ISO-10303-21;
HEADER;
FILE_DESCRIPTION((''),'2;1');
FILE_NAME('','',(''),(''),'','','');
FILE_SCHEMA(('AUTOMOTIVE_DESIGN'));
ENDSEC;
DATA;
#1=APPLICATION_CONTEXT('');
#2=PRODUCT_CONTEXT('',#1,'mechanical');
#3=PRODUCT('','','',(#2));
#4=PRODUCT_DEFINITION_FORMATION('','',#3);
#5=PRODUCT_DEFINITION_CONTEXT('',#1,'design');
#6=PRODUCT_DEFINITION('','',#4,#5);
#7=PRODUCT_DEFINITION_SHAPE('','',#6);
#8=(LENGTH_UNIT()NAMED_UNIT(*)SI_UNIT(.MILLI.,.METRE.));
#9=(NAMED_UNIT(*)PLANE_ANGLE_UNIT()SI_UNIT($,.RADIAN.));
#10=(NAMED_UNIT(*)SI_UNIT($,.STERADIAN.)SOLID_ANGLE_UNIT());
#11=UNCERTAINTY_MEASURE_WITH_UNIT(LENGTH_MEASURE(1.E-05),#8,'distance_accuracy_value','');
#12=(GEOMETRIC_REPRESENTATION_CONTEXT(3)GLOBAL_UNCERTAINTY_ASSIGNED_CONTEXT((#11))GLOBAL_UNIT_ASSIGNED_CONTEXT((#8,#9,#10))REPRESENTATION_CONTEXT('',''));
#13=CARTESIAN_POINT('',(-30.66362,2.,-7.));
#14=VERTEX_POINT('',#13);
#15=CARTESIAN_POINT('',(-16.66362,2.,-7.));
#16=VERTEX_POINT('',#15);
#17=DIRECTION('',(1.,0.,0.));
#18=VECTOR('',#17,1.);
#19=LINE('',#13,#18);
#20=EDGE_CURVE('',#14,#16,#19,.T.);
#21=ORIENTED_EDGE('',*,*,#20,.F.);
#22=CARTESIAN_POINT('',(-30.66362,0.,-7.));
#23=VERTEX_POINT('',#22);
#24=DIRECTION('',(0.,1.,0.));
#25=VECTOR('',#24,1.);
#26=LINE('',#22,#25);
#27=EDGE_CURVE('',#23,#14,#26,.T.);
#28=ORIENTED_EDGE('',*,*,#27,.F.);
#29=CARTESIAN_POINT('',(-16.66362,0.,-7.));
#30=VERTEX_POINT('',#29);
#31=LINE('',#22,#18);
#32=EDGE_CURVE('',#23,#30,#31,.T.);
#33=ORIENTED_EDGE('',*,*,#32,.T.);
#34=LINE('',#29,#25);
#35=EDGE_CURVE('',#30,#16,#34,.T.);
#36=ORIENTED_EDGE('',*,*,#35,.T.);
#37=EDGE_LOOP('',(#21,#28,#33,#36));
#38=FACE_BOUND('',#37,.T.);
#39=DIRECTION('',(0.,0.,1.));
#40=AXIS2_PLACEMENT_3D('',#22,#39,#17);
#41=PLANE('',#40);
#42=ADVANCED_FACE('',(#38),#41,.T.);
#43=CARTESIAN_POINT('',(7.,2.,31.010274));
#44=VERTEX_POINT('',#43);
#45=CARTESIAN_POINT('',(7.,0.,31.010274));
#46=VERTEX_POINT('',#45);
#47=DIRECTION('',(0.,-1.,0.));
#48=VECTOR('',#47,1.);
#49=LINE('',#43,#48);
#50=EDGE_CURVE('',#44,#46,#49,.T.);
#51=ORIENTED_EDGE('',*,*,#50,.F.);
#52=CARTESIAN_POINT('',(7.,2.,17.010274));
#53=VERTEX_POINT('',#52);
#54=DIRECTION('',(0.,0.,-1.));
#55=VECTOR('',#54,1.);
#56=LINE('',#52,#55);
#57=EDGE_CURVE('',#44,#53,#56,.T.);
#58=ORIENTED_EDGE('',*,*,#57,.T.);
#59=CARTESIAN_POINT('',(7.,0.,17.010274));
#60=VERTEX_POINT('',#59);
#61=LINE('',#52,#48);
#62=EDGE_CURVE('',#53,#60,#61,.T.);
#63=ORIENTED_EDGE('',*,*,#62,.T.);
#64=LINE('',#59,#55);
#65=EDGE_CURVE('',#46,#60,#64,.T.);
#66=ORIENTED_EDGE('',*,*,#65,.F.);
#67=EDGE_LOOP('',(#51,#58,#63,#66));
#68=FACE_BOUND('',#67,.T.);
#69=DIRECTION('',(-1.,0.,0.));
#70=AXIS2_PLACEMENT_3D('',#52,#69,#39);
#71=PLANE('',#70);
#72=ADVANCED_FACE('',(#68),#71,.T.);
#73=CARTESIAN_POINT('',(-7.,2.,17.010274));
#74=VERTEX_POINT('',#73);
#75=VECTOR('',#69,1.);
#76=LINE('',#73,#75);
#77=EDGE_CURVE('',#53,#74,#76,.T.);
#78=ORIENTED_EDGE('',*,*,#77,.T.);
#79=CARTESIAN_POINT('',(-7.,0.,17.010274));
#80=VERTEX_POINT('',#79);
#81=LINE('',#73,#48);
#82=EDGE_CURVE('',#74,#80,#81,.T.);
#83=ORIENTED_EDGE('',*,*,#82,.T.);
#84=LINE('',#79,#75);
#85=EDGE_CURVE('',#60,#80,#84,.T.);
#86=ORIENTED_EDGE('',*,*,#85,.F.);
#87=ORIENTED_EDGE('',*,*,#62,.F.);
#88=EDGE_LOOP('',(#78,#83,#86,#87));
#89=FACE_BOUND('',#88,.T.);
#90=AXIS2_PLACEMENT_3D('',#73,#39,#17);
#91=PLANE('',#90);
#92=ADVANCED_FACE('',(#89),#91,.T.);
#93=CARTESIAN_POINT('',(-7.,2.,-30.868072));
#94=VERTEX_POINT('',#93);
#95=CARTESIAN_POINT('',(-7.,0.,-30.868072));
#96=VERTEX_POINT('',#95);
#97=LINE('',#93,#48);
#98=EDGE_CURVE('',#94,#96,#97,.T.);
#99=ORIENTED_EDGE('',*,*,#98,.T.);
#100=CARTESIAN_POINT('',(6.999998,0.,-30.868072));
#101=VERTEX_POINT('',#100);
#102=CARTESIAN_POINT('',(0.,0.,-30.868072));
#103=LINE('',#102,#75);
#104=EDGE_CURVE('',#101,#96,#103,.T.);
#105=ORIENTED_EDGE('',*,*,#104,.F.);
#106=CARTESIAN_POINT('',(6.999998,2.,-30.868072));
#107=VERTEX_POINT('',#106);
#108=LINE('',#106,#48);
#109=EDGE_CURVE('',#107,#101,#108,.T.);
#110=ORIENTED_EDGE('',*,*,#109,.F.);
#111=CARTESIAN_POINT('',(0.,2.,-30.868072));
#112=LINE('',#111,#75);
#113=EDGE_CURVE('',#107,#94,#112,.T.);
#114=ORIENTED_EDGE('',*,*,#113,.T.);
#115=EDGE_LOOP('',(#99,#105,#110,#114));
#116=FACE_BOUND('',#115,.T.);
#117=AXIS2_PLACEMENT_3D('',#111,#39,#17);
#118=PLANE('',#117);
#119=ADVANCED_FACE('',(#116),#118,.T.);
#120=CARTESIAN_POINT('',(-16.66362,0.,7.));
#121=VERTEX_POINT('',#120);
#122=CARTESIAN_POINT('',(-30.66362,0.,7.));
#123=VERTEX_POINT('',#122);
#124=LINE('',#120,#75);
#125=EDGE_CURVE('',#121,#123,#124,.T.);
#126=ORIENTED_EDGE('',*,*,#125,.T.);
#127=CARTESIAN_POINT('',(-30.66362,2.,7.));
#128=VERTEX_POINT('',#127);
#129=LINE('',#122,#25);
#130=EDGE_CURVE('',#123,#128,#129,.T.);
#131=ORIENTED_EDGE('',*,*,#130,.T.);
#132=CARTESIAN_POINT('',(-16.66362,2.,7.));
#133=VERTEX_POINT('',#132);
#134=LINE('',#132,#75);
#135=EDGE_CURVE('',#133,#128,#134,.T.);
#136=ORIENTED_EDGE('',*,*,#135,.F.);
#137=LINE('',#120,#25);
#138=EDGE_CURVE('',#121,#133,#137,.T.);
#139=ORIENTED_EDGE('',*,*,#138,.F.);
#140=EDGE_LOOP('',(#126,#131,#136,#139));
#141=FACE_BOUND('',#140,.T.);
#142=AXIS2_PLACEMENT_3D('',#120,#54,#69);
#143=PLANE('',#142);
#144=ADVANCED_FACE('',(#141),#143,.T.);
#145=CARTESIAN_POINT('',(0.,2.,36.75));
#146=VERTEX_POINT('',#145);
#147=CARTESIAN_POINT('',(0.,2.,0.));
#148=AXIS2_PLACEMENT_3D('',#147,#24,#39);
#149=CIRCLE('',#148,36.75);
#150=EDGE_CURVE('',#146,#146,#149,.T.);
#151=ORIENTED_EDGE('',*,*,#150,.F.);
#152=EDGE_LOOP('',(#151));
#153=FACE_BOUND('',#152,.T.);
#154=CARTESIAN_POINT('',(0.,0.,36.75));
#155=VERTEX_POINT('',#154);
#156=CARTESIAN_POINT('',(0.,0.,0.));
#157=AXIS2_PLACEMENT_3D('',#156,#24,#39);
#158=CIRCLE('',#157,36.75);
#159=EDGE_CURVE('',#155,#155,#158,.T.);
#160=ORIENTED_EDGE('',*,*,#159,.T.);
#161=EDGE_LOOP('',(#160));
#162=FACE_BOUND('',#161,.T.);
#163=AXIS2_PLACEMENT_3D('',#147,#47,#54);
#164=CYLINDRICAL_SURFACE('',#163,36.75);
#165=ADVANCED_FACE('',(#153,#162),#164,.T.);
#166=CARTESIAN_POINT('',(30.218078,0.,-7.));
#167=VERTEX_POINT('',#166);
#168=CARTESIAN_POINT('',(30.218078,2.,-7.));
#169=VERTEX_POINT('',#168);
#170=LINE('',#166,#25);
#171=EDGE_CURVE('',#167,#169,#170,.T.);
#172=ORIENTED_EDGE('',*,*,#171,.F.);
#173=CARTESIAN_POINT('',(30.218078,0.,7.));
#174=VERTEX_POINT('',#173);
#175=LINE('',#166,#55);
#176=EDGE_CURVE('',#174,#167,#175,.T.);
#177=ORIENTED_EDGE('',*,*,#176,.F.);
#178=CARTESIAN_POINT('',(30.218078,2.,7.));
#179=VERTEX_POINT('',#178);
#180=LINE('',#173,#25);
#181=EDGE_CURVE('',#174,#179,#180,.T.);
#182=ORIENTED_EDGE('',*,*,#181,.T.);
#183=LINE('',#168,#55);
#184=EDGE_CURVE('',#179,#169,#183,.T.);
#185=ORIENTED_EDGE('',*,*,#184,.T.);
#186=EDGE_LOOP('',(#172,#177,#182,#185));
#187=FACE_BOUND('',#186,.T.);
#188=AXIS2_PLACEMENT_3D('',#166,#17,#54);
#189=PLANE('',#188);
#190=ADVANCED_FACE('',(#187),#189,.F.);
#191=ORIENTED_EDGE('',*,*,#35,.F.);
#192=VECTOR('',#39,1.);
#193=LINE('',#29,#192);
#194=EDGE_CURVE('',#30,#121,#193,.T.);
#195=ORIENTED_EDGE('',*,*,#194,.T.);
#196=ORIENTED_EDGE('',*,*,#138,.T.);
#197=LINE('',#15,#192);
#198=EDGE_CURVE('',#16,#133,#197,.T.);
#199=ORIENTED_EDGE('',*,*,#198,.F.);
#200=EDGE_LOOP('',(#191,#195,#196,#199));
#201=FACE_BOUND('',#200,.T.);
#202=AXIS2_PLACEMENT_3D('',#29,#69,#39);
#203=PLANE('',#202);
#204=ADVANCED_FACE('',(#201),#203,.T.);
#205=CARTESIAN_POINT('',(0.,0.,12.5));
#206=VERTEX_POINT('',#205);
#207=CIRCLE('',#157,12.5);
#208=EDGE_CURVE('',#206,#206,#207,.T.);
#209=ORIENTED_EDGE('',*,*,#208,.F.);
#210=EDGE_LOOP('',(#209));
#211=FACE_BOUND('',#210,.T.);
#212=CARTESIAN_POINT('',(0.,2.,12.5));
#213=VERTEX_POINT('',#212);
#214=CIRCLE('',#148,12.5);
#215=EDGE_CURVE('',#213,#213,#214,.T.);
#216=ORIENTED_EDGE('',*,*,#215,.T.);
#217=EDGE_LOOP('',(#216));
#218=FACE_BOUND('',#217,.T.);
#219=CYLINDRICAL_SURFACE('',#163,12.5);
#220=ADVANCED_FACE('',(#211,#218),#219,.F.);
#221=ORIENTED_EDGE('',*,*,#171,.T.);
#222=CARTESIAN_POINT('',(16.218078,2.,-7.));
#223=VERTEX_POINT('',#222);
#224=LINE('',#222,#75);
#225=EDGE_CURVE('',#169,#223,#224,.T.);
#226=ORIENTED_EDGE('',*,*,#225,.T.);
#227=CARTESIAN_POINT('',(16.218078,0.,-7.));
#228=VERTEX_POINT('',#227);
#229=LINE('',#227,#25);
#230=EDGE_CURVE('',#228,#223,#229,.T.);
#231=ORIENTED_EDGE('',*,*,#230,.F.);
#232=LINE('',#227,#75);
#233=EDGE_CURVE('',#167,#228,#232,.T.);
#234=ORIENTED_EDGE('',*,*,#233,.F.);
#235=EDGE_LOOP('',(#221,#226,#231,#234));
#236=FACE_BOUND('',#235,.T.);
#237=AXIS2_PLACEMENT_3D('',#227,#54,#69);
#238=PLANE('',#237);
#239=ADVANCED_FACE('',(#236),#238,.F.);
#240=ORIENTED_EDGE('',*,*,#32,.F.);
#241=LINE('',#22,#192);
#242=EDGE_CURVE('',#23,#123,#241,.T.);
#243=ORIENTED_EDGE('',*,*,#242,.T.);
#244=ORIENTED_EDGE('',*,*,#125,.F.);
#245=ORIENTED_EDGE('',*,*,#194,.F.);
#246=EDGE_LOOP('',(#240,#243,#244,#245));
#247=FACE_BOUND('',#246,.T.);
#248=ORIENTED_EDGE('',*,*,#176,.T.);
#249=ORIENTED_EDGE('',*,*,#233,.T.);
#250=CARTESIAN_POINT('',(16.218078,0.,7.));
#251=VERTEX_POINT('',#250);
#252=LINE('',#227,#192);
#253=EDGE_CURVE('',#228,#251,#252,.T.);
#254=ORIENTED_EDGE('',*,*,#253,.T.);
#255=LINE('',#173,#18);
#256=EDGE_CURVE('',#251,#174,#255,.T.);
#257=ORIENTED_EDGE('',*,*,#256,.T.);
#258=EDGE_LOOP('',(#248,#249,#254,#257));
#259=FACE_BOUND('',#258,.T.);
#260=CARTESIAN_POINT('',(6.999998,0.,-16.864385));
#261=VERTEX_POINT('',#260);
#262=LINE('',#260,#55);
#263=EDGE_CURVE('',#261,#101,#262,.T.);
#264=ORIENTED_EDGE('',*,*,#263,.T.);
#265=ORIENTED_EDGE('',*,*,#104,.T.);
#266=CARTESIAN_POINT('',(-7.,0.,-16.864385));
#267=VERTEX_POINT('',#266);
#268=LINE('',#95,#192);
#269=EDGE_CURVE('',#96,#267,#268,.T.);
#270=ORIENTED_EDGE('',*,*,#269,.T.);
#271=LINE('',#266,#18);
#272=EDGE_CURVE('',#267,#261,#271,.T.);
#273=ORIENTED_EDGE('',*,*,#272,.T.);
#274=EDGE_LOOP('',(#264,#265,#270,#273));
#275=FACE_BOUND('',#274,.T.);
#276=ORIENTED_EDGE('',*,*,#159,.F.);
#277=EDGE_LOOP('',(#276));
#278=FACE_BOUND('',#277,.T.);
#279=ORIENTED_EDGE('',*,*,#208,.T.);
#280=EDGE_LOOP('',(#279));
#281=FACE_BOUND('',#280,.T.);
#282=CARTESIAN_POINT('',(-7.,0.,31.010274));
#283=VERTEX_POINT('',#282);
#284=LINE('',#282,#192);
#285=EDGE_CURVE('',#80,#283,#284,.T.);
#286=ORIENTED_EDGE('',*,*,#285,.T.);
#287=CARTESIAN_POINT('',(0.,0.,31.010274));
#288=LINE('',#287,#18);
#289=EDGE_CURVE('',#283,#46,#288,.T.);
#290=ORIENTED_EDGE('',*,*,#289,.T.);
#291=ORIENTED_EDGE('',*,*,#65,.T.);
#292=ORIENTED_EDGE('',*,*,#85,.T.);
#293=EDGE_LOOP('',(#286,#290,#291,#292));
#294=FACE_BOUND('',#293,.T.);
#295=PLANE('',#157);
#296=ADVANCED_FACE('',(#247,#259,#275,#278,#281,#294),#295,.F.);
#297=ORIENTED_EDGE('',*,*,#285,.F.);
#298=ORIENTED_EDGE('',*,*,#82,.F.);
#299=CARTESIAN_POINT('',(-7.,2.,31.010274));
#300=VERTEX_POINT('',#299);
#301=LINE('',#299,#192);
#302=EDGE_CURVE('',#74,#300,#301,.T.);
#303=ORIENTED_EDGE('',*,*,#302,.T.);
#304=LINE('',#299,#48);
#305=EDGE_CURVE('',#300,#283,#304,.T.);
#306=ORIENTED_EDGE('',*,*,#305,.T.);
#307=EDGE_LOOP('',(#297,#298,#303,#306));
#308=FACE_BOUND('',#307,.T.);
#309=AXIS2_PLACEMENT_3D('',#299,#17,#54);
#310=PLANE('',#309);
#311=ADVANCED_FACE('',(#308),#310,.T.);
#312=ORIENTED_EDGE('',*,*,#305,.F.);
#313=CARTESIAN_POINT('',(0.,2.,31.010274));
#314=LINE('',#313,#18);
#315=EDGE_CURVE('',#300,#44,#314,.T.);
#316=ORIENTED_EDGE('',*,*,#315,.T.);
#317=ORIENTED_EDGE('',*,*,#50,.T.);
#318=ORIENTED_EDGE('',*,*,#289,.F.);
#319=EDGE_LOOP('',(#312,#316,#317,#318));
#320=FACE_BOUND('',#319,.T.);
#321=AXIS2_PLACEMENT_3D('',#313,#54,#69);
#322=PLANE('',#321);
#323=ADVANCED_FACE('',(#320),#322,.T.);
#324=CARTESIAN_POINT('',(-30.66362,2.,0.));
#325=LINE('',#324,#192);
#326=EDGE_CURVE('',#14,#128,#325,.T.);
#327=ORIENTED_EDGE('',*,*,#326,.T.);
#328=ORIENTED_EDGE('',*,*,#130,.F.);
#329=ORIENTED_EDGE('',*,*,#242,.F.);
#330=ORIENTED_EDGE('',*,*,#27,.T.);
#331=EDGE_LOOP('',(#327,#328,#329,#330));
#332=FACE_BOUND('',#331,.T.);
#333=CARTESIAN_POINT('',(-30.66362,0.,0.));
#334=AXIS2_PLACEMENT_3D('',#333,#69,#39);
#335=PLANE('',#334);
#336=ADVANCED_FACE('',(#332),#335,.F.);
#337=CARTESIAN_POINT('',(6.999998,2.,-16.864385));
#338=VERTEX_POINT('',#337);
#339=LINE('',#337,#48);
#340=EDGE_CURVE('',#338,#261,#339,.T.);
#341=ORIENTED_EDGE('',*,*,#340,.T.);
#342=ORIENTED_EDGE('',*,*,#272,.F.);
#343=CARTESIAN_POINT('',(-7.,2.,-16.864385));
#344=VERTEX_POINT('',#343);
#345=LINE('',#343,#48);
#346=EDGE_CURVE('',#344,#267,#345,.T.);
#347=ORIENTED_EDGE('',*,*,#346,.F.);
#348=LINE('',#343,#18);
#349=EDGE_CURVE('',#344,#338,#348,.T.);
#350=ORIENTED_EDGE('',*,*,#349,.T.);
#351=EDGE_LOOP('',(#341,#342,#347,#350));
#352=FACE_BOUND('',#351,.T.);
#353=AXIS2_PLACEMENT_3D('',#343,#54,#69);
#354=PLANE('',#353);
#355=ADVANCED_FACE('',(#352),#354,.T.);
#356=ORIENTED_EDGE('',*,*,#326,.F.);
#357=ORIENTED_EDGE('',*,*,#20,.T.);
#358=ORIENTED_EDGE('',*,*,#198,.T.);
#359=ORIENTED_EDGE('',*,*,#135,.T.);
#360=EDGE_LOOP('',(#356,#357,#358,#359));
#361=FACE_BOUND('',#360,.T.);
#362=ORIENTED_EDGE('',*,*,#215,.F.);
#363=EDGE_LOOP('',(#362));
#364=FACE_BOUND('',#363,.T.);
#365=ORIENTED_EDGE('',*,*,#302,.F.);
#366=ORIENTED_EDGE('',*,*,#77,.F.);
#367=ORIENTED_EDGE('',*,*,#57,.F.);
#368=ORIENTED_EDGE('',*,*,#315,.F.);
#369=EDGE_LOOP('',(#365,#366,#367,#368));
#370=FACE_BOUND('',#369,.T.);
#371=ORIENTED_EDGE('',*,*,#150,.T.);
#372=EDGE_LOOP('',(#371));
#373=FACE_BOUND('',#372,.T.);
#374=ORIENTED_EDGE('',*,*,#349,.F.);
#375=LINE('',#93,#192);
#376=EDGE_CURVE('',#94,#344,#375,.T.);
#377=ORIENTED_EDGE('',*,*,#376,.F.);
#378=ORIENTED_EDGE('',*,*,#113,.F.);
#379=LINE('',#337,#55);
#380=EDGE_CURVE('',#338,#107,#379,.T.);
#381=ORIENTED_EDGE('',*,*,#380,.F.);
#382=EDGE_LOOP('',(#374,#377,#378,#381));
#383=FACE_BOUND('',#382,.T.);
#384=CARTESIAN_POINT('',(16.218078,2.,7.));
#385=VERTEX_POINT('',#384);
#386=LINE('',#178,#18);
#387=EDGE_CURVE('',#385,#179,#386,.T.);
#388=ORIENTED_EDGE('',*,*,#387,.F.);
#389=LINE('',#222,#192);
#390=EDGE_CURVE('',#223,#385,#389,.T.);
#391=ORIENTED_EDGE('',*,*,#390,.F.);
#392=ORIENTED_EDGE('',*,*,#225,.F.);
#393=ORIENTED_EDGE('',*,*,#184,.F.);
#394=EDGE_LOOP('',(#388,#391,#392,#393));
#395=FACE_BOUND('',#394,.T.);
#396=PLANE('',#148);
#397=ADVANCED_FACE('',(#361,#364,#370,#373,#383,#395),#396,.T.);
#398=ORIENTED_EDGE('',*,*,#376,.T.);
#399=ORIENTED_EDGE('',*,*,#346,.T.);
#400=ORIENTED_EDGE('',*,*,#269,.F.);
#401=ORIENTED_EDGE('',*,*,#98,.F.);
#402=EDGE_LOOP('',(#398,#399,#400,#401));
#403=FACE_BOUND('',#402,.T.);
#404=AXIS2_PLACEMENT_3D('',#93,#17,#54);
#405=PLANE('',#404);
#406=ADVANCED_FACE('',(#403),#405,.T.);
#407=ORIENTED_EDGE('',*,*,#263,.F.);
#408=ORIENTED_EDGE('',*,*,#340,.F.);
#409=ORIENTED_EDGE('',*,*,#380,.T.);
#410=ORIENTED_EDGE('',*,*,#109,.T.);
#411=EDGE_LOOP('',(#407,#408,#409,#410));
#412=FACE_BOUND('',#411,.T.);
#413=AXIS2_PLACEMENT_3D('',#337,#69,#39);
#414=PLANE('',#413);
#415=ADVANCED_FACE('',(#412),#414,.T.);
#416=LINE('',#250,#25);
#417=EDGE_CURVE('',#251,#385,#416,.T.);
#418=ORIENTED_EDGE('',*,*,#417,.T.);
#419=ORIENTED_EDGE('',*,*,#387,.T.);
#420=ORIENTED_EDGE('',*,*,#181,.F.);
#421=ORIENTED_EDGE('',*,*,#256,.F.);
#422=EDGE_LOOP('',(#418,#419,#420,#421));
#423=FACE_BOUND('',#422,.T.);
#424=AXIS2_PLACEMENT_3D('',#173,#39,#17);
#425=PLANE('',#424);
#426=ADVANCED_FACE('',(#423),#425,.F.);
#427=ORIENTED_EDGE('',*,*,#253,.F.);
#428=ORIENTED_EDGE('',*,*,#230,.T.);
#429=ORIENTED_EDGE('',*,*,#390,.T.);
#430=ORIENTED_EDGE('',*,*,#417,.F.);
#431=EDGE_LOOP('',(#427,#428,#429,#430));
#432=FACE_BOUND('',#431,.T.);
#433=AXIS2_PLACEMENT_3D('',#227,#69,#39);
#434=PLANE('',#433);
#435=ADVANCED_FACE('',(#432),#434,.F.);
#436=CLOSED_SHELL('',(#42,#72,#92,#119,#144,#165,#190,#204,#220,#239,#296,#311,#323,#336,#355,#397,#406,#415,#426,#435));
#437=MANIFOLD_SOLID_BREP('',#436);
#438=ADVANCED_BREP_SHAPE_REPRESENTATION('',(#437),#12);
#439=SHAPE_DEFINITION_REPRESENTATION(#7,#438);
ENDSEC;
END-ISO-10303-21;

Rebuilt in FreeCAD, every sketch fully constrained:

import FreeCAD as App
import Part
import Sketcher

V = App.Vector
Q = App.Units.Quantity

doc = App.newDocument("Part")
body = doc.addObject("PartDesign::Body", "Body")

# Sketch on XZ plane
sketch1 = body.newObject("Sketcher::SketchObject", "Sketch")
sketch1.AttachmentSupport = (doc.getObject("XZ_Plane"), [""])
sketch1.MapMode = "FlatFace"
sketch1.addGeometry(Part.Circle(V(0, 0, 0), V(0, 0, 1), 37), False)
sketch1.addConstraint(Sketcher.Constraint("Coincident", 0, 3, -1, 1))
sketch1.addConstraint(Sketcher.Constraint("Diameter", 0, Q("73.5 mm")))
pad1 = body.newObject("PartDesign::Pad", "Pad")
pad1.Profile = sketch1
pad1.Length = 2
pad1.Reversed = True

# Sketch on XZ plane
sketch2 = body.newObject("Sketcher::SketchObject", "Sketch001")
sketch2.AttachmentSupport = (doc.getObject("XZ_Plane"), [""])
sketch2.MapMode = "FlatFace"
sketch2.addGeometry(Part.Circle(V(0, 0, 0), V(0, 0, 1), 12), False)
sketch2.addConstraint(Sketcher.Constraint("Coincident", 0, 3, -1, 1))
sketch2.addConstraint(Sketcher.Constraint("Diameter", 0, Q("25 mm")))
pocket1 = body.newObject("PartDesign::Pocket", "Pocket")
pocket1.Profile = sketch2
pocket1.Type = "ThroughAll"

# Sketch on XZ plane
sketch3 = body.newObject("Sketcher::SketchObject", "Sketch002")
sketch3.AttachmentSupport = (doc.getObject("XZ_Plane"), [""])
sketch3.MapMode = "FlatFace"
sketch3.AttachmentOffset = App.Placement(V(0, 0, -2), App.Rotation())
sketch3.addGeometry(Part.LineSegment(V(-31, -7, 0), V(-31, 7, 0)), False)
sketch3.addGeometry(Part.LineSegment(V(-31, 7, 0), V(-17, 7, 0)), False)
sketch3.addGeometry(Part.LineSegment(V(-17, 7, 0), V(-17, -7, 0)), False)
sketch3.addGeometry(Part.LineSegment(V(-17, -7, 0), V(-31, -7, 0)), False)
sketch3.addConstraint(Sketcher.Constraint("Coincident", 0, 2, 1, 1))
sketch3.addConstraint(Sketcher.Constraint("Coincident", 1, 2, 2, 1))
sketch3.addConstraint(Sketcher.Constraint("Coincident", 2, 2, 3, 1))
sketch3.addConstraint(Sketcher.Constraint("Coincident", 3, 2, 0, 1))
sketch3.addConstraint(Sketcher.Constraint("Vertical", 0))
sketch3.addConstraint(Sketcher.Constraint("Horizontal", 1))
sketch3.addConstraint(Sketcher.Constraint("Vertical", 2))
sketch3.addConstraint(Sketcher.Constraint("Horizontal", 3))
sketch3.addConstraint(Sketcher.Constraint("Equal", 3, 0))
sketch3.addConstraint(Sketcher.Constraint("DistanceX", 1, 1, 1, 2, Q("14 mm")))
sketch3.addConstraint(Sketcher.Constraint("DistanceY", -1, 1, 0, 2, Q("7 mm")))
sketch3.addConstraint(Sketcher.Constraint("DistanceX", 0, 2, -1, 1, Q("30.66362 mm")))
pocket2 = body.newObject("PartDesign::Pocket", "Pocket001")
pocket2.Profile = sketch3
pocket2.Type = "ThroughAll"
pocket2.Reversed = True

# Sketch on XZ plane
sketch4 = body.newObject("Sketcher::SketchObject", "Sketch003")
sketch4.AttachmentSupport = (doc.getObject("XZ_Plane"), [""])
sketch4.MapMode = "FlatFace"
sketch4.AttachmentOffset = App.Placement(V(0, 0, -2), App.Rotation())
sketch4.addGeometry(Part.LineSegment(V(16, -7, 0), V(16, 7, 0)), False)
sketch4.addGeometry(Part.LineSegment(V(16, 7, 0), V(30, 7, 0)), False)
sketch4.addGeometry(Part.LineSegment(V(30, 7, 0), V(30, -7, 0)), False)
sketch4.addGeometry(Part.LineSegment(V(30, -7, 0), V(16, -7, 0)), False)
sketch4.addConstraint(Sketcher.Constraint("Coincident", 0, 2, 1, 1))
sketch4.addConstraint(Sketcher.Constraint("Coincident", 1, 2, 2, 1))
sketch4.addConstraint(Sketcher.Constraint("Coincident", 2, 2, 3, 1))
sketch4.addConstraint(Sketcher.Constraint("Coincident", 3, 2, 0, 1))
sketch4.addConstraint(Sketcher.Constraint("Vertical", 0))
sketch4.addConstraint(Sketcher.Constraint("Horizontal", 1))
sketch4.addConstraint(Sketcher.Constraint("Vertical", 2))
sketch4.addConstraint(Sketcher.Constraint("Horizontal", 3))
sketch4.addConstraint(Sketcher.Constraint("Equal", 3, 0))
sketch4.addConstraint(Sketcher.Constraint("DistanceX", 1, 1, 1, 2, Q("14 mm")))
sketch4.addConstraint(Sketcher.Constraint("DistanceY", -1, 1, 0, 2, Q("7 mm")))
sketch4.addConstraint(Sketcher.Constraint("DistanceX", -1, 1, 0, 2, Q("16.218078 mm")))
pocket3 = body.newObject("PartDesign::Pocket", "Pocket002")
pocket3.Profile = sketch4
pocket3.Type = "ThroughAll"
pocket3.Reversed = True

# Sketch on XZ plane
sketch5 = body.newObject("Sketcher::SketchObject", "Sketch004")
sketch5.AttachmentSupport = (doc.getObject("XZ_Plane"), [""])
sketch5.MapMode = "FlatFace"
sketch5.addGeometry(Part.LineSegment(V(-7, -31, 0), V(-7, -17, 0)), False)
sketch5.addGeometry(Part.LineSegment(V(-7, -17, 0), V(7, -17, 0)), False)
sketch5.addGeometry(Part.LineSegment(V(7, -17, 0), V(7, -31, 0)), False)
sketch5.addGeometry(Part.LineSegment(V(7, -31, 0), V(-7, -31, 0)), False)
sketch5.addGeometry(Part.LineSegment(V(7, 31, 0), V(7, 17, 0)), False)
sketch5.addGeometry(Part.LineSegment(V(7, 17, 0), V(-7, 17, 0)), False)
sketch5.addGeometry(Part.LineSegment(V(-7, 17, 0), V(-7, 31, 0)), False)
sketch5.addGeometry(Part.LineSegment(V(-7, 31, 0), V(7, 31, 0)), False)
sketch5.addConstraint(Sketcher.Constraint("Coincident", 0, 2, 1, 1))
sketch5.addConstraint(Sketcher.Constraint("Coincident", 1, 2, 2, 1))
sketch5.addConstraint(Sketcher.Constraint("Coincident", 2, 2, 3, 1))
sketch5.addConstraint(Sketcher.Constraint("Coincident", 3, 2, 0, 1))
sketch5.addConstraint(Sketcher.Constraint("Coincident", 4, 2, 5, 1))
sketch5.addConstraint(Sketcher.Constraint("Coincident", 5, 2, 6, 1))
sketch5.addConstraint(Sketcher.Constraint("Coincident", 6, 2, 7, 1))
sketch5.addConstraint(Sketcher.Constraint("Coincident", 7, 2, 4, 1))
sketch5.addConstraint(Sketcher.Constraint("Vertical", 0))
sketch5.addConstraint(Sketcher.Constraint("Horizontal", 1))
sketch5.addConstraint(Sketcher.Constraint("Vertical", 2))
sketch5.addConstraint(Sketcher.Constraint("Horizontal", 3))
sketch5.addConstraint(Sketcher.Constraint("Vertical", 4))
sketch5.addConstraint(Sketcher.Constraint("Horizontal", 5))
sketch5.addConstraint(Sketcher.Constraint("Vertical", 6))
sketch5.addConstraint(Sketcher.Constraint("Horizontal", 7))
sketch5.addConstraint(Sketcher.Constraint("Vertical", 3, 2, 5, 2))
sketch5.addConstraint(Sketcher.Constraint("Equal", 7, 4))
sketch5.addConstraint(Sketcher.Constraint("DistanceX", 5, 2, 5, 1, Q("14 mm")))
sketch5.addConstraint(Sketcher.Constraint("DistanceX", 0, 2, -1, 1, Q("7 mm")))
sketch5.addConstraint(Sketcher.Constraint("DistanceX", 1, 1, 1, 2, Q("13.999998 mm")))
sketch5.addConstraint(Sketcher.Constraint("DistanceY", 0, 1, 0, 2, Q("14.003687 mm")))
sketch5.addConstraint(Sketcher.Constraint("DistanceY", 1, 2, 4, 2, Q("33.87466 mm")))
sketch5.addConstraint(Sketcher.Constraint("DistanceY", 0, 2, -1, 1, Q("16.864385 mm")))
pocket4 = body.newObject("PartDesign::Pocket", "Pocket003")
pocket4.Profile = sketch5
pocket4.Type = "ThroughAll"

doc.recompute()
